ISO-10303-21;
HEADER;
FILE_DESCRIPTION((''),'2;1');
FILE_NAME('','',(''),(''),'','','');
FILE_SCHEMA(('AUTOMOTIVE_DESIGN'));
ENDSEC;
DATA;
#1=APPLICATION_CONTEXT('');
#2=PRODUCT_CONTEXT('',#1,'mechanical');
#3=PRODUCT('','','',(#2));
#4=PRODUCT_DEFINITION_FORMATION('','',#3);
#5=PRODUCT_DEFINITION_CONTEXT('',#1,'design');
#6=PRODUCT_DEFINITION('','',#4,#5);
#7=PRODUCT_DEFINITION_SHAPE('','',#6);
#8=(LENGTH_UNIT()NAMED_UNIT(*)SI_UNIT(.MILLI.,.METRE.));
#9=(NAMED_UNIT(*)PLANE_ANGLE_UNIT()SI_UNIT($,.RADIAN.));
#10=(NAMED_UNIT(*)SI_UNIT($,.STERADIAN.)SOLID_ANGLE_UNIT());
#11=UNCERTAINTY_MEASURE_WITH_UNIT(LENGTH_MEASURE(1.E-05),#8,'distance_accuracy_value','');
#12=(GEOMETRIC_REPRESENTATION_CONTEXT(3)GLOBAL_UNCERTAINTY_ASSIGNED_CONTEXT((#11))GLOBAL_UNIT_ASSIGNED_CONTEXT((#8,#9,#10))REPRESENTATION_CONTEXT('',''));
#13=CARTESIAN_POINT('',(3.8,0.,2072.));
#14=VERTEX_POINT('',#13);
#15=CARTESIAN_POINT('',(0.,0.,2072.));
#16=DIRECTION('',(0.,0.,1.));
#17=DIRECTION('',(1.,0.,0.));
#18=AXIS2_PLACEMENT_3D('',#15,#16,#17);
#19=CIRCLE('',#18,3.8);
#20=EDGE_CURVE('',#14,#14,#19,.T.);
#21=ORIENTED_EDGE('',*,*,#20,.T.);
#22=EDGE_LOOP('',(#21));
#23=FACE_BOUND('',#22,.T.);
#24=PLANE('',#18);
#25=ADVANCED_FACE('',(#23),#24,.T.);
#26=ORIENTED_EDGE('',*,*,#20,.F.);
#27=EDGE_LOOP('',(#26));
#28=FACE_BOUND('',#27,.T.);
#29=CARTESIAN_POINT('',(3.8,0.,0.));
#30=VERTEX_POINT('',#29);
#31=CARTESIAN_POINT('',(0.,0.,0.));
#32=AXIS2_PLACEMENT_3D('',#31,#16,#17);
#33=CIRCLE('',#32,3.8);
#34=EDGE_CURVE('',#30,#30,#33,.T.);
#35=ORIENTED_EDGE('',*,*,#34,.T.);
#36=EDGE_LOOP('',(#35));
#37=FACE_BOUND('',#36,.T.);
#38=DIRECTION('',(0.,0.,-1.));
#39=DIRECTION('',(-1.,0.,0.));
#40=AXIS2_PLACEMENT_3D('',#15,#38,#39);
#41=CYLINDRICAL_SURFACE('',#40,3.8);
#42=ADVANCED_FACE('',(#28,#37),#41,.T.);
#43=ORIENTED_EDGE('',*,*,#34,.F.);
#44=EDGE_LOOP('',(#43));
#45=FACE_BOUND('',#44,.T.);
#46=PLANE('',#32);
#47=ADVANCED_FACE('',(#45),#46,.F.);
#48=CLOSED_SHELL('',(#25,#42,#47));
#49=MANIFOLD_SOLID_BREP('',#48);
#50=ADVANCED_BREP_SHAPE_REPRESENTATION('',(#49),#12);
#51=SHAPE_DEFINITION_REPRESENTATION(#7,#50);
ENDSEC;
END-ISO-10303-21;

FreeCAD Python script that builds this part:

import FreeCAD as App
import Part
import Sketcher

V = App.Vector

doc = App.newDocument("Part")
params = doc.addObject("Spreadsheet::Sheet", "Params")
for row, (alias, value) in enumerate([
    ("sketch1_diameter", "7.6 mm"),
    ("pad1_length", "2072 mm"),
], start=1):
    params.set(f"A{row}", alias)
    params.set(f"B{row}", "=" + value)
    params.setAlias(f"B{row}", alias)

body = doc.addObject("PartDesign::Body", "Body")

# Sketch on XY plane
sketch1 = body.newObject("Sketcher::SketchObject", "Sketch")
sketch1.AttachmentSupport = (doc.getObject("XY_Plane"), [""])
sketch1.MapMode = "FlatFace"
sketch1.addGeometry(Part.Circle(V(0, 0, 0), V(0, 0, 1), 3.8), False)
sketch1.addConstraint([
    Sketcher.Constraint("Coincident", 0, 3, -1, 1),
    Sketcher.Constraint("Diameter", 0, 7.6),
])
sketch1.setExpression("Constraints[1]", "Params.sketch1_diameter")
pad1 = body.newObject("PartDesign::Pad", "Pad")
pad1.Profile = sketch1
pad1.setExpression("Length", "Params.pad1_length")

doc.recompute()
